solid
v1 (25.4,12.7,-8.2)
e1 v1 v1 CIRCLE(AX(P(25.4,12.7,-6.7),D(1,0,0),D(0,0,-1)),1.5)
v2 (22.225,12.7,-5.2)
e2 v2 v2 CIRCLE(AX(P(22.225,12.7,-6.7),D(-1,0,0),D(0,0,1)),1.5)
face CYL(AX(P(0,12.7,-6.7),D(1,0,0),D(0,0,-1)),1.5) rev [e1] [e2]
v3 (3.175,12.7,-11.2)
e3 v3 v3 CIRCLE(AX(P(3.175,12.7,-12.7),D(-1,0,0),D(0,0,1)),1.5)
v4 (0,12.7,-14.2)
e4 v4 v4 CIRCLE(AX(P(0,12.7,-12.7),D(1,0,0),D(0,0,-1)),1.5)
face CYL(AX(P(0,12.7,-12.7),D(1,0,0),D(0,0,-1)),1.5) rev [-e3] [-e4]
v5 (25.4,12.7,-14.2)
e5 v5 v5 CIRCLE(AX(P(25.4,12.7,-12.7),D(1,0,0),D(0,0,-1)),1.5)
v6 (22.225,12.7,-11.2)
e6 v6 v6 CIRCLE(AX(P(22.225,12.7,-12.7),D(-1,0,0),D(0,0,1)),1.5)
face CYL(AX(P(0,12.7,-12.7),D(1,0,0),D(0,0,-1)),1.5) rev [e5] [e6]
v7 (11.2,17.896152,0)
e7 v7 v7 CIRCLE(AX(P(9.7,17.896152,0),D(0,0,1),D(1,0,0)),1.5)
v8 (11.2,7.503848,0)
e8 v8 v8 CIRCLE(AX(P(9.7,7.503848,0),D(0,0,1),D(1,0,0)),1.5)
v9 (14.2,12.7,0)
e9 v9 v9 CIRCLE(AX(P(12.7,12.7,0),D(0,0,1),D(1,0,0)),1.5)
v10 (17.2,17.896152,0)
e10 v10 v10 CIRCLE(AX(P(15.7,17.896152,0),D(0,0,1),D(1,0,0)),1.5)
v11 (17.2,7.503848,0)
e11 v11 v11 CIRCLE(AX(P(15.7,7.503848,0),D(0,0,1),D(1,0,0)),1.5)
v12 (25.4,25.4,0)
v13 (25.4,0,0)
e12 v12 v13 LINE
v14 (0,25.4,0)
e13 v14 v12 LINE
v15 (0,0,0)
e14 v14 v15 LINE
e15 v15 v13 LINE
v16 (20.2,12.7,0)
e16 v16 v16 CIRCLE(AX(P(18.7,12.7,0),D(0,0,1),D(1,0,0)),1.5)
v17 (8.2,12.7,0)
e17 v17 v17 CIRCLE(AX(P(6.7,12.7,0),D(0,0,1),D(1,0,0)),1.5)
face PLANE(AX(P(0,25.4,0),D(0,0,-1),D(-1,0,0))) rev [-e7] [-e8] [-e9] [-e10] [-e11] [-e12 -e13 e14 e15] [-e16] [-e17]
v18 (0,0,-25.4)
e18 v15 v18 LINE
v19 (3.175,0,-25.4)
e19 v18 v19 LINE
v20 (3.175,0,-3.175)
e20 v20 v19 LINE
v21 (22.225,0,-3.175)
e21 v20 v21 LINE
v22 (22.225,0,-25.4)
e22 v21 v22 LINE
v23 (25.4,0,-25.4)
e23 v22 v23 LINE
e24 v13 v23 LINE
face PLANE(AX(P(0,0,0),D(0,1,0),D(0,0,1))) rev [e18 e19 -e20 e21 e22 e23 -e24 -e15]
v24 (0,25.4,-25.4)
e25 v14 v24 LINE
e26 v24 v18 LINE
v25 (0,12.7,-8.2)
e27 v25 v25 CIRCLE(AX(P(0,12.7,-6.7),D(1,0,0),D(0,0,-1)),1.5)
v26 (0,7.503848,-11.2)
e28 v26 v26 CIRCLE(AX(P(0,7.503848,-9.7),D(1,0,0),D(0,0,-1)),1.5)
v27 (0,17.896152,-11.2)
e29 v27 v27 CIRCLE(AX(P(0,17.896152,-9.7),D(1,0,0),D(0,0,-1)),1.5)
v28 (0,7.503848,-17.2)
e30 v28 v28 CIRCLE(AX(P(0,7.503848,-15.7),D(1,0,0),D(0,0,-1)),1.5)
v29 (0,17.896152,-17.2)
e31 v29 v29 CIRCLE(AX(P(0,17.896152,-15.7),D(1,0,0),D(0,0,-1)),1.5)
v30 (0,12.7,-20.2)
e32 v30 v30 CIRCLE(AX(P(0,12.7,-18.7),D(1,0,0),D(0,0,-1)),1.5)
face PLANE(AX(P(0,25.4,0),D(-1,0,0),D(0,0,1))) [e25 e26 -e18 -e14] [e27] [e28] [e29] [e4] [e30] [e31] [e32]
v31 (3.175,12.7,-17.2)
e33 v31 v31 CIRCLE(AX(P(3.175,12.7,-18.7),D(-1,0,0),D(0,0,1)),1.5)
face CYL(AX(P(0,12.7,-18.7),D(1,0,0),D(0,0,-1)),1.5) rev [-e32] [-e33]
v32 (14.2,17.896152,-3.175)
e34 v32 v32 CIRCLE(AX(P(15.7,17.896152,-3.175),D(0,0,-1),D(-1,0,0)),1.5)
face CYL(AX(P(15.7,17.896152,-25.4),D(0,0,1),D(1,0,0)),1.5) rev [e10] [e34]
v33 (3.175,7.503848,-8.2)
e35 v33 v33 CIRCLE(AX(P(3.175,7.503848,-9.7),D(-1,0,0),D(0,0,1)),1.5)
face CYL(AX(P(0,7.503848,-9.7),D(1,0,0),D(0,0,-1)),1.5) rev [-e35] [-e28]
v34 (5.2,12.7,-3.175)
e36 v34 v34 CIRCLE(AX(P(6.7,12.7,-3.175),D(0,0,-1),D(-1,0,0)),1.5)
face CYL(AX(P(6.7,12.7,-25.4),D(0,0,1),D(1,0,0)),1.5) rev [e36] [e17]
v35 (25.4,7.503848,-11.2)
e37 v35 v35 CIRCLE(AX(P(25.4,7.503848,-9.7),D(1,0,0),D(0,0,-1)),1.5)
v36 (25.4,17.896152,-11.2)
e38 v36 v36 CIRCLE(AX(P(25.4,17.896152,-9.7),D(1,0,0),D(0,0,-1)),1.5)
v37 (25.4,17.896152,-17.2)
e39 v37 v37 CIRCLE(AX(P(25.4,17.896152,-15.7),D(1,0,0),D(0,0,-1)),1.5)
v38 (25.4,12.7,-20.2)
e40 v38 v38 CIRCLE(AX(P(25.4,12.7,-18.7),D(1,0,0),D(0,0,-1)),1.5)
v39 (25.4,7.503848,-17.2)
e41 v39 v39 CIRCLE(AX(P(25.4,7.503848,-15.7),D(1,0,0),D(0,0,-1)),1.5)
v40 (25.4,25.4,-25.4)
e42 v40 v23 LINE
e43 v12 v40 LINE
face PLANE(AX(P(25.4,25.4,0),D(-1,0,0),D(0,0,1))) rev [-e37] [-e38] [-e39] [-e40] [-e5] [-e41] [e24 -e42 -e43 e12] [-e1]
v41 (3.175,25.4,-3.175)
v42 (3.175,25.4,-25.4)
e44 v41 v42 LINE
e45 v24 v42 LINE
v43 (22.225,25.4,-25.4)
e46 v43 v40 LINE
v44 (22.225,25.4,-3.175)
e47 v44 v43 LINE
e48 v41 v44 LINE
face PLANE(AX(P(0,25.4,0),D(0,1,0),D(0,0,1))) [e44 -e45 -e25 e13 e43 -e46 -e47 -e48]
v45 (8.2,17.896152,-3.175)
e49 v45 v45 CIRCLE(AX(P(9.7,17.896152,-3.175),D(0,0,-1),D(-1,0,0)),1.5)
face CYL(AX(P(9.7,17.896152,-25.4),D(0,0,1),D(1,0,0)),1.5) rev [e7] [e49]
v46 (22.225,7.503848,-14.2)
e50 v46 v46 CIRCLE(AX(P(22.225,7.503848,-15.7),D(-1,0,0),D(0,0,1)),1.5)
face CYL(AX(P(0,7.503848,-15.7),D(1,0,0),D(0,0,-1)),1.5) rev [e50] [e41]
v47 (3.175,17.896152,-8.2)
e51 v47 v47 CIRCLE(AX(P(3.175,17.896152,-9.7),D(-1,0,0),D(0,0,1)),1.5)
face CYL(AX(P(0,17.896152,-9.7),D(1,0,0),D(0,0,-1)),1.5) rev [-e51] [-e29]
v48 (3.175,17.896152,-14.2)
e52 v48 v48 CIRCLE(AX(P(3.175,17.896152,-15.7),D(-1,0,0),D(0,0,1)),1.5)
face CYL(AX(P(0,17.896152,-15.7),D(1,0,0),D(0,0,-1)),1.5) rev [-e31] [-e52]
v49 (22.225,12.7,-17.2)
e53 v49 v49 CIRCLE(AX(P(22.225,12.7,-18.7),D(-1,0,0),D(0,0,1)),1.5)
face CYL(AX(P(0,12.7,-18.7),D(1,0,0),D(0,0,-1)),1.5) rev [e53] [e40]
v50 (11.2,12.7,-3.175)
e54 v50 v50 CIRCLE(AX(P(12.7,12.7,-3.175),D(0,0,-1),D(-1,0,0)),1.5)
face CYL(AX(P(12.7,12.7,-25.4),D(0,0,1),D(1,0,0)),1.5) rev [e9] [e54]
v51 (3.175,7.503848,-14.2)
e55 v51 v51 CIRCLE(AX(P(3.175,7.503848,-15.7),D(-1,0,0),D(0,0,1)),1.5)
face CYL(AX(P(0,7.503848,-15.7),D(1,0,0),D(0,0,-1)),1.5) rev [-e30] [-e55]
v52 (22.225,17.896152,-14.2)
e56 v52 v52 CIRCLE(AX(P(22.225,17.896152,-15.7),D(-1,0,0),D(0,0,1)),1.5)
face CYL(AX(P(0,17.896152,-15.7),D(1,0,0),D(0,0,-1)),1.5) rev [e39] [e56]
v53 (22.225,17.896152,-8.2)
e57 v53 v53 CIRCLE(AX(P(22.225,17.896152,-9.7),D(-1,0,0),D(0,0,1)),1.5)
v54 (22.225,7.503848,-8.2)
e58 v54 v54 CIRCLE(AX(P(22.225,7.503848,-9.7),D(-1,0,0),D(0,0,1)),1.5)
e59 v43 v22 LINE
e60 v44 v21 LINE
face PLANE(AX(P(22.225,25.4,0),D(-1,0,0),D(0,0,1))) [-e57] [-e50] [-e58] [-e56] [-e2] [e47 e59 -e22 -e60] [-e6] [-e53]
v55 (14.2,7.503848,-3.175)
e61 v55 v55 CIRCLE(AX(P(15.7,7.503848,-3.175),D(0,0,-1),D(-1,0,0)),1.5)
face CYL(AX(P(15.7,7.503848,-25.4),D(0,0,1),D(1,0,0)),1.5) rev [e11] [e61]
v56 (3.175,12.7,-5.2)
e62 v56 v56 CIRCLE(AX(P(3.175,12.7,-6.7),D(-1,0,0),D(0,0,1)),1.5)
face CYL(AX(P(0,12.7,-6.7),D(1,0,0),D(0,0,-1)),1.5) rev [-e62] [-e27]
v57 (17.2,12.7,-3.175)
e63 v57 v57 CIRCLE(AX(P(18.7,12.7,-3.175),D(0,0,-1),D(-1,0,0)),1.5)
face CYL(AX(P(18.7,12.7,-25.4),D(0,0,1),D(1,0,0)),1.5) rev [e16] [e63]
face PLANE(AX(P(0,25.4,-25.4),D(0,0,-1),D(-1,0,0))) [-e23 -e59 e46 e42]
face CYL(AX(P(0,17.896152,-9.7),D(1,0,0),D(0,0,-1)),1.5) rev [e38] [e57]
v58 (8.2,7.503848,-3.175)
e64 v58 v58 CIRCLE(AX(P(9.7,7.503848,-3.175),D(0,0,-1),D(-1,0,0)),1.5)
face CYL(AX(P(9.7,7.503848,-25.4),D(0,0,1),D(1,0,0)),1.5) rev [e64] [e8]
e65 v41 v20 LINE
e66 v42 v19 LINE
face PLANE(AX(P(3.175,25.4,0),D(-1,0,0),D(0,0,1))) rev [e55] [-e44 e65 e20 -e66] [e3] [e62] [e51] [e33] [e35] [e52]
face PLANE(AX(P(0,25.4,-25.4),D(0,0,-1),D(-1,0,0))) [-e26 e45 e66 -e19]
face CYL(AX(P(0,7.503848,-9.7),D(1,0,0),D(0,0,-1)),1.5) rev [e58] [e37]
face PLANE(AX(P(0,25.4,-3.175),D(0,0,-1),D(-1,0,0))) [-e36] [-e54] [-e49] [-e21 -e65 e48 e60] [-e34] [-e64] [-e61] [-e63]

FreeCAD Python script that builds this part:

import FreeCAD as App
import Part
import Sketcher

V = App.Vector
Q = App.Units.Quantity

doc = App.newDocument("Part")
params = doc.addObject("Spreadsheet::Sheet", "Params")
for row, (alias, value) in enumerate([
    ("sketch1_width", "1 in"),
    ("sketch1_width2", "0.75 in"),
    ("sketch1_height", "0.875 in"),
    ("pad1_length", "1 in"),
], start=1):
    params.set(f"A{row}", alias)
    params.set(f"B{row}", "=" + value)
    params.setAlias(f"B{row}", alias)

body = doc.addObject("PartDesign::Body", "Body")

# Sketch on XZ plane
sketch1 = body.newObject("Sketcher::SketchObject", "Sketch")
sketch1.AttachmentSupport = (doc.getObject("XZ_Plane"), [""])
sketch1.MapMode = "FlatFace"
sketch1.addGeometry([
    Part.LineSegment(V(22.225, -3.175, 0), V(3.175, -3.175, 0)),  # 0
    Part.LineSegment(V(3.175, -3.175, 0), V(3.175, -25.4, 0)),  # 1
    Part.LineSegment(V(3.175, -25.4, 0), V(0, -25.4, 0)),  # 2
    Part.LineSegment(V(0, -25.4, 0), V(0, 0, 0)),  # 3
    Part.LineSegment(V(0, 0, 0), V(25.4, 0, 0)),  # 4
    Part.LineSegment(V(25.4, 0, 0), V(25.4, -25.4, 0)),  # 5
    Part.LineSegment(V(25.4, -25.4, 0), V(22.225, -25.4, 0)),  # 6
    Part.LineSegment(V(22.225, -25.4, 0), V(22.225, -3.175, 0)),  # 7
], False)
sketch1.addConstraint([
    Sketcher.Constraint("Coincident", 0, 2, 1, 1),
    Sketcher.Constraint("Coincident", 1, 2, 2, 1),
    Sketcher.Constraint("Coincident", 2, 2, 3, 1),
    Sketcher.Constraint("Coincident", 3, 2, 4, 1),
    Sketcher.Constraint("Coincident", 4, 2, 5, 1),
    Sketcher.Constraint("Coincident", 5, 2, 6, 1),
    Sketcher.Constraint("Coincident", 6, 2, 7, 1),
    Sketcher.Constraint("Coincident", 7, 2, 0, 1),
    Sketcher.Constraint("Horizontal", 0),
    Sketcher.Constraint("Vertical", 1),
    Sketcher.Constraint("Horizontal", 2),
    Sketcher.Constraint("Vertical", 3),
    Sketcher.Constraint("Horizontal", 4),
    Sketcher.Constraint("Vertical", 5),
    Sketcher.Constraint("Horizontal", 6),
    Sketcher.Constraint("Vertical", 7),
    Sketcher.Constraint("Coincident", 3, 2, -1, 1),
    Sketcher.Constraint("Horizontal", 2, 2, 5, 2),
    Sketcher.Constraint("Equal", 2, 6),
    Sketcher.Constraint("Equal", 4, 3),
    Sketcher.Constraint("DistanceX", 4, 1, 4, 2, Q("1 in")),
    Sketcher.Constraint("DistanceX", 0, 2, 0, 1, Q("0.75 in")),
    Sketcher.Constraint("DistanceY", 1, 2, 1, 1, Q("0.875 in")),
])
sketch1.setExpression("Constraints[20]", "Params.sketch1_width")
sketch1.setExpression("Constraints[21]", "Params.sketch1_width2")
sketch1.setExpression("Constraints[22]", "Params.sketch1_height")
pad1 = body.newObject("PartDesign::Pad", "Pad")
pad1.Profile = sketch1
pad1.setExpression("Length", "Params.pad1_length")
pad1.Reversed = True

# Sketch on XY plane
sketch2 = body.newObject("Sketcher::SketchObject", "Sketch001")
sketch2.AttachmentSupport = (doc.getObject("XY_Plane"), [""])
sketch2.MapMode = "FlatFace"
sketch2.addGeometry([
    Part.Circle(V(12.7, 12.7, 0), V(0, 0, 1), 1.5),  # 0
    Part.Circle(V(6.7, 12.7, 0), V(0, 0, 1), 1.5),  # 1
    Part.Circle(V(9.7, 17.896152, 0), V(0, 0, 1), 1.5),  # 2
    Part.Circle(V(15.7, 17.896152, 0), V(0, 0, 1), 1.5),  # 3
    Part.Circle(V(18.7, 12.7, 0), V(0, 0, 1), 1.5),  # 4
    Part.Circle(V(15.7, 7.503848, 0), V(0, 0, 1), 1.5),  # 5
    Part.Circle(V(9.7, 7.503848, 0), V(0, 0, 1), 1.5),  # 6
], False)
sketch2.addConstraint([
    Sketcher.Constraint("Equal", 0, 1),
    Sketcher.Constraint("Equal", 1, 2),
    Sketcher.Constraint("Equal", 2, 3),
    Sketcher.Constraint("Equal", 3, 4),
    Sketcher.Constraint("Equal", 4, 5),
    Sketcher.Constraint("Equal", 5, 6),
    Sketcher.Constraint("Horizontal", 0, 3, 1, 3),
    Sketcher.Constraint("Horizontal", 2, 3, 3, 3),
    Sketcher.Constraint("Horizontal", 1, 3, 4, 3),
    Sketcher.Constraint("Horizontal", 5, 3, 6, 3),
    Sketcher.Constraint("Vertical", 3, 3, 5, 3),
    Sketcher.Constraint("Vertical", 2, 3, 6, 3),
    Sketcher.Constraint("DistanceX", -1, 1, 0, 3, Q("0.5 in")),
    Sketcher.Constraint("DistanceY", -1, 1, 0, 3, Q("0.5 in")),
    Sketcher.Constraint("Diameter", 0, Q("3 mm")),
    Sketcher.Constraint("DistanceX", -1, 1, 1, 3, Q("6.7 mm")),
    Sketcher.Constraint("DistanceX", -1, 1, 2, 3, Q("9.7 mm")),
    Sketcher.Constraint("DistanceX", -1, 1, 3, 3, Q("15.7 mm")),
    Sketcher.Constraint("DistanceX", -1, 1, 4, 3, Q("18.7 mm")),
    Sketcher.Constraint("DistanceY", -1, 1, 2, 3, Q("17.896152 mm")),
    Sketcher.Constraint("DistanceY", -1, 1, 5, 3, Q("7.503848 mm")),
])
pocket1 = body.newObject("PartDesign::Pocket", "Pocket")
pocket1.Profile = sketch2
pocket1.Type = "ThroughAll"

# Sketch on YZ plane
sketch3 = body.newObject("Sketcher::SketchObject", "Sketch002")
sketch3.AttachmentSupport = (doc.getObject("YZ_Plane"), [""])
sketch3.MapMode = "FlatFace"
sketch3.AttachmentOffset = App.Placement(V(0, 0, 1 * 25.4), App.Rotation())
sketch3.addGeometry([
    Part.Circle(V(12.7, -12.7, 0), V(0, 0, 1), 1.5),  # 0
    Part.Circle(V(12.7, -6.7, 0), V(0, 0, 1), 1.5),  # 1
    Part.Circle(V(17.896152, -9.7, 0), V(0, 0, 1), 1.5),  # 2
    Part.Circle(V(17.896152, -15.7, 0), V(0, 0, 1), 1.5),  # 3
    Part.Circle(V(12.7, -18.7, 0), V(0, 0, 1), 1.5),  # 4
    Part.Circle(V(7.503848, -15.7, 0), V(0, 0, 1), 1.5),  # 5
    Part.Circle(V(7.503848, -9.7, 0), V(0, 0, 1), 1.5),  # 6
], False)
sketch3.addConstraint([
    Sketcher.Constraint("Equal", 0, 1),
    Sketcher.Constraint("Equal", 1, 2),
    Sketcher.Constraint("Equal", 2, 3),
    Sketcher.Constraint("Equal", 3, 4),
    Sketcher.Constraint("Equal", 4, 5),
    Sketcher.Constraint("Equal", 5, 6),
    Sketcher.Constraint("Horizontal", 3, 3, 5, 3),
    Sketcher.Constraint("Horizontal", 2, 3, 6, 3),
    Sketcher.Constraint("Vertical", 0, 3, 1, 3),
    Sketcher.Constraint("Vertical", 2, 3, 3, 3),
    Sketcher.Constraint("Vertical", 1, 3, 4, 3),
    Sketcher.Constraint("Vertical", 5, 3, 6, 3),
    Sketcher.Constraint("DistanceX", -1, 1, 0, 3, Q("0.5 in")),
    Sketcher.Constraint("DistanceY", 0, 3, -1, 1, Q("0.5 in")),
    Sketcher.Constraint("Diameter", 0, Q("3 mm")),
    Sketcher.Constraint("DistanceY", 1, 3, -1, 1, Q("6.7 mm")),
    Sketcher.Constraint("DistanceY", 2, 3, -1, 1, Q("9.7 mm")),
    Sketcher.Constraint("DistanceY", 3, 3, -1, 1, Q("15.7 mm")),
    Sketcher.Constraint("DistanceY", 4, 3, -1, 1, Q("18.7 mm")),
    Sketcher.Constraint("DistanceX", -1, 1, 2, 3, Q("17.896152 mm")),
    Sketcher.Constraint("DistanceX", -1, 1, 5, 3, Q("7.503848 mm")),
])
pocket2 = body.newObject("PartDesign::Pocket", "Pocket001")
pocket2.Profile = sketch3
pocket2.Type = "ThroughAll"

doc.recompute()
